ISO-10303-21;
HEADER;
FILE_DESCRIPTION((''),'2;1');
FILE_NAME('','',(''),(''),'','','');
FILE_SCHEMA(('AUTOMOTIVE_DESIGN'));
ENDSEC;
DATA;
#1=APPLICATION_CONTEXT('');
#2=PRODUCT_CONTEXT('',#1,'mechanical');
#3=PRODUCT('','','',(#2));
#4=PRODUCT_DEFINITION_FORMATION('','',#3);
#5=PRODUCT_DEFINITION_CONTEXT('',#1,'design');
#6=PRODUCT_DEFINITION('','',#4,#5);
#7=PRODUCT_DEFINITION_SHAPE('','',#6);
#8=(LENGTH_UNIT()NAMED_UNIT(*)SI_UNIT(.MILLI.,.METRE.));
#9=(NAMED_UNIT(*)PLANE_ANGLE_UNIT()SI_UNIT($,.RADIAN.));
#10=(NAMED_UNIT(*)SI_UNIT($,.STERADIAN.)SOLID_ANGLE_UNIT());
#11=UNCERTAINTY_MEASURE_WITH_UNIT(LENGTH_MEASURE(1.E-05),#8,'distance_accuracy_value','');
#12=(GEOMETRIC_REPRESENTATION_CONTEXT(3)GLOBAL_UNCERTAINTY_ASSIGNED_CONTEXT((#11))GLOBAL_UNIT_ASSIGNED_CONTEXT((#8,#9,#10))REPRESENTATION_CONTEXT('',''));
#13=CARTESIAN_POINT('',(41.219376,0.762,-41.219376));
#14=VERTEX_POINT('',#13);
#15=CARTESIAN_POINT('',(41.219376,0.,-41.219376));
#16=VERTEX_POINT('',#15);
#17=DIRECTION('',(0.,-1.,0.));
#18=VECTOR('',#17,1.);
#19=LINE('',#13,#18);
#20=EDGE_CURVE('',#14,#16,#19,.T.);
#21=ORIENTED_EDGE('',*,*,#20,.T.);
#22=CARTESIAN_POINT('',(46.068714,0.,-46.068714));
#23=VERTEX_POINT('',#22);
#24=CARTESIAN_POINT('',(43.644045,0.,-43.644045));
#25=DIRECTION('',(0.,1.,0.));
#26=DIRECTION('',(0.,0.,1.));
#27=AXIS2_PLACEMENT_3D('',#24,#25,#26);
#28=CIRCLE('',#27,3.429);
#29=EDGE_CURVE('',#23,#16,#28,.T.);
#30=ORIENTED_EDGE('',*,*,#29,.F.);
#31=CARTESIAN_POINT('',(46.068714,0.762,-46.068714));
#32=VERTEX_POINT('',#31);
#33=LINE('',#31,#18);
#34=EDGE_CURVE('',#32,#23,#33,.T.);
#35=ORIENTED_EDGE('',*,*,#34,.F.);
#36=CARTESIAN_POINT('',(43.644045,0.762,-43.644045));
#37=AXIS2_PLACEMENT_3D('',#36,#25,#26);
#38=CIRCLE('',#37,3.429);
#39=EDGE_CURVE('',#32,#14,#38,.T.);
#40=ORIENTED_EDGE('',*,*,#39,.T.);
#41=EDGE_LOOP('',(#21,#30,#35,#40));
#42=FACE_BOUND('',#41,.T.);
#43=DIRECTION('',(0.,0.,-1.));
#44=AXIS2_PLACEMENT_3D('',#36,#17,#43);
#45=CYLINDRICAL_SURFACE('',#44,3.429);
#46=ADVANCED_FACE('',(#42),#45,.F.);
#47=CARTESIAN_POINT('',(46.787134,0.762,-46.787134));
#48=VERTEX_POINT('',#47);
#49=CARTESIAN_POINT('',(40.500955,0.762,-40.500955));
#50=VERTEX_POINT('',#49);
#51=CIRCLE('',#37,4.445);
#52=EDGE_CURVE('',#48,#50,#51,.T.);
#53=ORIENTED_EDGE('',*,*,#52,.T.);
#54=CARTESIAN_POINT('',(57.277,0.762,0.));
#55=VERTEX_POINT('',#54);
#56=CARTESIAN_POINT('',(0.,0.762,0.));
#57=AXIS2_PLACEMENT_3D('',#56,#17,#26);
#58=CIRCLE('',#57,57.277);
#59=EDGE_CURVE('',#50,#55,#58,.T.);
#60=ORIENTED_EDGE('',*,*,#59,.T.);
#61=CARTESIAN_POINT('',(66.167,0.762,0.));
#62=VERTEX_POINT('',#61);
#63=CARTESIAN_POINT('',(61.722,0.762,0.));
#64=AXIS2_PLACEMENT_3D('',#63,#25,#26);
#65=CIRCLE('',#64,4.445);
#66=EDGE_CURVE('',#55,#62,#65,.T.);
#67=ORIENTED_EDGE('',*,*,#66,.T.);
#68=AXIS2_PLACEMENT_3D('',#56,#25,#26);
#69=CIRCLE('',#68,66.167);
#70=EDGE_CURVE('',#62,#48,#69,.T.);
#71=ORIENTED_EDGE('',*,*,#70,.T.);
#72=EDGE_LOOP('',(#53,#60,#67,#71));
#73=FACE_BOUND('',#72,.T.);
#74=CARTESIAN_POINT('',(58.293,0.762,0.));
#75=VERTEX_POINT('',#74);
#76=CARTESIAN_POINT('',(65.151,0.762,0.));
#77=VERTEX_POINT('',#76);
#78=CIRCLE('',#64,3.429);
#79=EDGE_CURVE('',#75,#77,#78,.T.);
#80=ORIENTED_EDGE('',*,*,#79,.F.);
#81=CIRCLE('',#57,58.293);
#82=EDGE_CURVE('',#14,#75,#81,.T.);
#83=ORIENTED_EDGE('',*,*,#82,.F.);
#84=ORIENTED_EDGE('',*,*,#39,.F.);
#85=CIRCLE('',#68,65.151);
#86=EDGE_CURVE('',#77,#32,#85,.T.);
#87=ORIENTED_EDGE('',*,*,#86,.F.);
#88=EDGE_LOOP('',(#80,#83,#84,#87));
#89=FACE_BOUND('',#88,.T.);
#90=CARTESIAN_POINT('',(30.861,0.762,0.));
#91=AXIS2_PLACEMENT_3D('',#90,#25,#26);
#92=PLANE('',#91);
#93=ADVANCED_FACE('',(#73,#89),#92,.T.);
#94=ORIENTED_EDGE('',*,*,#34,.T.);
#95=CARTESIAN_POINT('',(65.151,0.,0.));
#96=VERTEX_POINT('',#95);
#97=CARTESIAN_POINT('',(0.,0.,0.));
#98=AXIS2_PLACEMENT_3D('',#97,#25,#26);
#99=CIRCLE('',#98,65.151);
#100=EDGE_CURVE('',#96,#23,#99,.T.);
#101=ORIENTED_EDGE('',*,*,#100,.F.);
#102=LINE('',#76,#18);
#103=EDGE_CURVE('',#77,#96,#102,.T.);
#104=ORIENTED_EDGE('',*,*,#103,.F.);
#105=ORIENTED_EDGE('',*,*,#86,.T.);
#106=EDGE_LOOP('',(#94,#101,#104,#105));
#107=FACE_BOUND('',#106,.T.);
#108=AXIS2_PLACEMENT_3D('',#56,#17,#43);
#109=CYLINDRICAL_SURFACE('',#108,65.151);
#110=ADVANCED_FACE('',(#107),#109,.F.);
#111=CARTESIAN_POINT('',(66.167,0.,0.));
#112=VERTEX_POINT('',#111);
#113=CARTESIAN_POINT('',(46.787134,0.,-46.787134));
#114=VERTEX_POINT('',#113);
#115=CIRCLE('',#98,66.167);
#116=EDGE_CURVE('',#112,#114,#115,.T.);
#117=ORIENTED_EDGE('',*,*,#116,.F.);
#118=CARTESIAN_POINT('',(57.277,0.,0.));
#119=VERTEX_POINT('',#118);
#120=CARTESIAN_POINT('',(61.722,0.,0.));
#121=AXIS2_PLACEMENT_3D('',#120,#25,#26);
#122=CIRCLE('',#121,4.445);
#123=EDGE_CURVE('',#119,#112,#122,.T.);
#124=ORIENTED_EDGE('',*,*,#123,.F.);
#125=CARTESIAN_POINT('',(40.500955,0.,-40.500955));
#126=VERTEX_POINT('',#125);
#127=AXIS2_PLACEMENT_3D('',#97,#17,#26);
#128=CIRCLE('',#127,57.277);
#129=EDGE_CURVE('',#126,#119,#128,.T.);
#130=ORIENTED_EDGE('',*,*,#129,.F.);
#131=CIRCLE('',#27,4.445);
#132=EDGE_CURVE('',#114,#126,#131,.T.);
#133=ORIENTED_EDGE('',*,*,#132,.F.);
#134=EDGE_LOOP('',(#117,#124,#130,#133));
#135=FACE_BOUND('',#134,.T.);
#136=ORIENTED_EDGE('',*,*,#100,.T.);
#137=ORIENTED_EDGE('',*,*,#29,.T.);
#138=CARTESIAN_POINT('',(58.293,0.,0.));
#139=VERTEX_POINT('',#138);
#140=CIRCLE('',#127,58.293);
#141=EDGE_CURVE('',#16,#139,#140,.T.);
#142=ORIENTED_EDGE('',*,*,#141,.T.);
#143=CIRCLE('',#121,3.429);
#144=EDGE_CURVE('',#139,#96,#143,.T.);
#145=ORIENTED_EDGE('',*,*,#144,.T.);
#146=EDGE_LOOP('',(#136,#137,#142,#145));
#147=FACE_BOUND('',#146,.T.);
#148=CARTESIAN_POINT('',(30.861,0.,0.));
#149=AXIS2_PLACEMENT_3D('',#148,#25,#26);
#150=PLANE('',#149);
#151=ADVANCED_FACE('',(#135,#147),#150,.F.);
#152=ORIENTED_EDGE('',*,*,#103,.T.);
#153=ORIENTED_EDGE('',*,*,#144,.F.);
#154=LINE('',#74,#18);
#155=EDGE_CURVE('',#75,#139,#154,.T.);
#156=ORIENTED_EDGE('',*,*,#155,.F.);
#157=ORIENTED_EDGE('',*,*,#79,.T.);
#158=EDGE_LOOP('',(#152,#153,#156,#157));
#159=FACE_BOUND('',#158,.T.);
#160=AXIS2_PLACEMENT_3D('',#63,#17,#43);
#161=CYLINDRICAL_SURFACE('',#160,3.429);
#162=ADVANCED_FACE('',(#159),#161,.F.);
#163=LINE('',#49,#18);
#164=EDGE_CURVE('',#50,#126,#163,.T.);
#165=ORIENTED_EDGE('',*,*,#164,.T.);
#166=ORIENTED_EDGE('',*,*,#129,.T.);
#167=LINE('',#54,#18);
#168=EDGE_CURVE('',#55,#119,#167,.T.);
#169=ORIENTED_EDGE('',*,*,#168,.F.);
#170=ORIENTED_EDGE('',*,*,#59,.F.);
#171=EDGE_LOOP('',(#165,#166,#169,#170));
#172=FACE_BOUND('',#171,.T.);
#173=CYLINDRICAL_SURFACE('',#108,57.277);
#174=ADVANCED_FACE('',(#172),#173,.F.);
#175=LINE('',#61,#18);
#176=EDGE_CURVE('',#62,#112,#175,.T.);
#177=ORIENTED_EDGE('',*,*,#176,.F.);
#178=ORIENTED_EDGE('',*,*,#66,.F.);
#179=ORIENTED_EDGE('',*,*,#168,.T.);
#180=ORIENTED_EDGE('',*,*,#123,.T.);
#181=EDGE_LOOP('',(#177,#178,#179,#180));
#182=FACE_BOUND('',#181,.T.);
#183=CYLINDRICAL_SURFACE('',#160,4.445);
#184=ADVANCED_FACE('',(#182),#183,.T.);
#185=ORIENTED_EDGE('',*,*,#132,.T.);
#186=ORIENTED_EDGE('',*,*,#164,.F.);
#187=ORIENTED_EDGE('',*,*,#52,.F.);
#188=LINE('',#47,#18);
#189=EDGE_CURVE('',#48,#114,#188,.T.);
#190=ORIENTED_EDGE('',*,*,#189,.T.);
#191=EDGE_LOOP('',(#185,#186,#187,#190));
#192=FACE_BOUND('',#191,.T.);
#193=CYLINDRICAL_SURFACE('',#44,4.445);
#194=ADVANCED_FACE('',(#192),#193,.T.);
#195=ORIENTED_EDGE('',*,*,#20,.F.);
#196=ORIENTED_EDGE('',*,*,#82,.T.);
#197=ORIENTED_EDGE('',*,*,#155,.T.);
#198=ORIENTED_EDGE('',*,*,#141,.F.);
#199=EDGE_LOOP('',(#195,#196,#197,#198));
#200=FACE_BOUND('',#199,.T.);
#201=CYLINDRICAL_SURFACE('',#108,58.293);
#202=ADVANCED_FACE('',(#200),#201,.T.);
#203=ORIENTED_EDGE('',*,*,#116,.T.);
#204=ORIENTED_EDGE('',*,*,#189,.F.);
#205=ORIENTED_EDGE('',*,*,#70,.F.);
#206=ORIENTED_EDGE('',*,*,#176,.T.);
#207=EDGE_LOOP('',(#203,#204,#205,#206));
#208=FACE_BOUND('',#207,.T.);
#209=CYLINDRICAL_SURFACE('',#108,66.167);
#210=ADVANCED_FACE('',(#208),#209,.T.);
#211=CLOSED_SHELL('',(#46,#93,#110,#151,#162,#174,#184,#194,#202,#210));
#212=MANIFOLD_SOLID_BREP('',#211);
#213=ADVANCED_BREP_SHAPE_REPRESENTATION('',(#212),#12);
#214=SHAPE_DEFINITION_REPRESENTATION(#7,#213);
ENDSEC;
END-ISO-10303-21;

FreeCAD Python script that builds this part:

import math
import FreeCAD as App
import Part
import Sketcher

V = App.Vector
Q = App.Units.Quantity

doc = App.newDocument("Part")
body = doc.addObject("PartDesign::Body", "Body")

sketch1 = body.newObject("Sketcher::SketchObject", "Sketch")
sketch1.AttachmentSupport = (doc.getObject("XZ_Plane"), [""])
sketch1.MapMode = "FlatFace"
sketch1.addGeometry([
    Part.ArcOfCircle(Part.Circle(V(0, 0, 0), V(0, 0, 1), 66.2), math.radians(-45), math.radians(0)),
    Part.ArcOfCircle(Part.Circle(V(43.6, -43.6, 0), V(0, 0, 1), 4.4), math.radians(135), math.radians(315)),
    Part.ArcOfCircle(Part.Circle(V(0, 0, 0), V(0, 0, 1), 57.3), math.radians(-45), math.radians(0)),
    Part.ArcOfCircle(Part.Circle(V(61.7, 0, 0), V(0, 0, 1), 4.4), math.radians(0), math.radians(180)),
    Part.ArcOfCircle(Part.Circle(V(0, 0, 0), V(0, 0, 1), 65.2), math.radians(-45), math.radians(0)),
    Part.ArcOfCircle(Part.Circle(V(61.7, 0, 0), V(0, 0, 1), 3.4), math.radians(0), math.radians(180)),
    Part.ArcOfCircle(Part.Circle(V(0, 0, 0), V(0, 0, 1), 58.3), math.radians(-45), math.radians(0)),
    Part.ArcOfCircle(Part.Circle(V(43.6, -43.6, 0), V(0, 0, 1), 3.4), math.radians(135), math.radians(315)),
], False)
sketch1.addConstraint([
    Sketcher.Constraint("Tangent", 0, 1, 1, 2),
    Sketcher.Constraint("Tangent", 1, 1, 2, 1),
    Sketcher.Constraint("Tangent", 2, 2, 3, 2),
    Sketcher.Constraint("Tangent", 3, 1, 0, 2),
    Sketcher.Constraint("Tangent", 4, 2, 5, 1),
    Sketcher.Constraint("Tangent", 5, 2, 6, 2),
    Sketcher.Constraint("Tangent", 6, 1, 7, 1),
    Sketcher.Constraint("Tangent", 7, 2, 4, 1),
    Sketcher.Constraint("Coincident", 0, 3, -1, 1),
    Sketcher.Constraint("Coincident", 2, 3, -1, 1),
    Sketcher.Constraint("Coincident", 4, 3, -1, 1),
    Sketcher.Constraint("Coincident", 6, 3, -1, 1),
    Sketcher.Constraint("Coincident", 5, 3, 3, 3),
    Sketcher.Constraint("PointOnObject", 3, 3, -1),
    Sketcher.Constraint("Radius", 0, Q("2.605 in")),
    Sketcher.Constraint("Radius", 1, Q("0.175 in")),
    Sketcher.Constraint("Radius", 4, Q("2.565 in")),
    Sketcher.Constraint("DistanceX", 7, 3, 0, 1, Q("3.14309 mm")),
    Sketcher.Constraint("DistanceX", 1, 1, 1, 3, Q("3.14309 mm")),
])
pad1 = body.newObject("PartDesign::Pad", "Pad")
pad1.Profile = sketch1
pad1.Length = Q("0.03 in")
pad1.Reversed = True

doc.recompute()
